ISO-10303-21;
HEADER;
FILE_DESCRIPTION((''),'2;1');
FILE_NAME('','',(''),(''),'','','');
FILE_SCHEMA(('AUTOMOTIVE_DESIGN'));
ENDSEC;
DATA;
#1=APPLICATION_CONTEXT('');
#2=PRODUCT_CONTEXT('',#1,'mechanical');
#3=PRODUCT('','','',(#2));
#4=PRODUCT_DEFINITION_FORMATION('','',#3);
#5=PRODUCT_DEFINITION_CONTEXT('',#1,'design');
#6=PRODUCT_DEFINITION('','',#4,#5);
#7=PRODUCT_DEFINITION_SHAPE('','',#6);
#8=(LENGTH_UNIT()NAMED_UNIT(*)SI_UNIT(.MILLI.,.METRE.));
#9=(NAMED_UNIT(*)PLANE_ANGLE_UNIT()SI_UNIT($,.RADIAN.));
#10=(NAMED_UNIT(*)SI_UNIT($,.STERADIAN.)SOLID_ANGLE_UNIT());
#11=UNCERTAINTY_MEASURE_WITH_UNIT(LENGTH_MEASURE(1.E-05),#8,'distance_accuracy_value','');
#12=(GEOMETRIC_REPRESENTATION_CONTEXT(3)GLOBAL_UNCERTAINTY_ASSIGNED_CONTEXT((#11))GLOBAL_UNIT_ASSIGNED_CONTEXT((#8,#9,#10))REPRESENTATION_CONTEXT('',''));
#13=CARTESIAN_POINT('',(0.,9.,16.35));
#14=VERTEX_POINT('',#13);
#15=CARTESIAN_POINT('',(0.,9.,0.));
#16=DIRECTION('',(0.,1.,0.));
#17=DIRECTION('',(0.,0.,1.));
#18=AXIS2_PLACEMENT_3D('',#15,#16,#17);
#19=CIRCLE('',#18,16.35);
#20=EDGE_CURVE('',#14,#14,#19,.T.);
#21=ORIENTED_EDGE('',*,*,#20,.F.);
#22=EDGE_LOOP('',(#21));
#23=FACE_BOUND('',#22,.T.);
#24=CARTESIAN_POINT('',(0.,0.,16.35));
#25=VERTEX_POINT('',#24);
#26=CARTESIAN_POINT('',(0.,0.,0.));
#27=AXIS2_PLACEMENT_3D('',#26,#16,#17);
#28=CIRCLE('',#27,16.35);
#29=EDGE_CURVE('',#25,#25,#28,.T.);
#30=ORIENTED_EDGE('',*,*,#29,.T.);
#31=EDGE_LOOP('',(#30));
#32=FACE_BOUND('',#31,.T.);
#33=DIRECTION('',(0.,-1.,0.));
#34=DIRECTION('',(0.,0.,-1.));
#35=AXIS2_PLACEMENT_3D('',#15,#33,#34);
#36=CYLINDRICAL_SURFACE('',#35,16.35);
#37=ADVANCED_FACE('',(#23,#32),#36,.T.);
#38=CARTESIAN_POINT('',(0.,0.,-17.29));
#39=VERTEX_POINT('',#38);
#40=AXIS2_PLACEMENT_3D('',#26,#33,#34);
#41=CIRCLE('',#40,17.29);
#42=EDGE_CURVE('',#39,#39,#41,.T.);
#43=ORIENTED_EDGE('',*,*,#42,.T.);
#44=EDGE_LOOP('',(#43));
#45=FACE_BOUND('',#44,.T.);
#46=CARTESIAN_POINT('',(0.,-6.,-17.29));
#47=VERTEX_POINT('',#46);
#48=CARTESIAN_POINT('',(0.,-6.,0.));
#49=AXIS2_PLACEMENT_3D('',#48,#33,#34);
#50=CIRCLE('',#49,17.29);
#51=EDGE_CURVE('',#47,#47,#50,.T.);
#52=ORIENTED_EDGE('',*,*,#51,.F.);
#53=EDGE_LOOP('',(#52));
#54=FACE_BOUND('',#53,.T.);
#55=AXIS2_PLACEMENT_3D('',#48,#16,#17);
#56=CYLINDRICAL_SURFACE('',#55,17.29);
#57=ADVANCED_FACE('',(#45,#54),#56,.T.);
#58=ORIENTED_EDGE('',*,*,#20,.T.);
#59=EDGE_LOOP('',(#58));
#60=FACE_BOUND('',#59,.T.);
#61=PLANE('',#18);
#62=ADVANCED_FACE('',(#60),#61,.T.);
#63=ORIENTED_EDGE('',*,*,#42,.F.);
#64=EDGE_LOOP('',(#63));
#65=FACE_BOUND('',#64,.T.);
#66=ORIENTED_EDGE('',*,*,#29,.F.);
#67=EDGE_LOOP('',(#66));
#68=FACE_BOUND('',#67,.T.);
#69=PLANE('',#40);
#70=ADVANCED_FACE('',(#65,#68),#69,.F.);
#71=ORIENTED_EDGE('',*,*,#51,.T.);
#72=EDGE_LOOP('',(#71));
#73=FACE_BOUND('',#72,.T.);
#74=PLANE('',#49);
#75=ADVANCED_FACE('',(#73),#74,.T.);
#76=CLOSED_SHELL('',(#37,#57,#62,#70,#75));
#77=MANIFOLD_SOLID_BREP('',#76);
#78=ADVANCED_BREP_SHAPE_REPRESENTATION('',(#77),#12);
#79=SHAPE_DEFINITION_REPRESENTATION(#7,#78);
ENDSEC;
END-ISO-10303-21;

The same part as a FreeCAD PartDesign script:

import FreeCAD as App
import Part
import Sketcher
from FreeCAD import Vector

doc = App.newDocument("Part")
params = doc.addObject("Spreadsheet::Sheet", "Params")
for row, (alias, value) in enumerate([
    ("sketch1_diameter", "32.7 mm"),
    ("pad1_length", "9 mm"),
    ("sketch2_diameter", "34.58 mm"),
    ("pad2_length", "6 mm"),
], start=1):
    params.set(f"A{row}", alias)
    params.set(f"B{row}", "=" + value)
    params.setAlias(f"B{row}", alias)

body = doc.addObject("PartDesign::Body", "Body")

# Sketch on XZ plane
sketch1 = body.newObject("Sketcher::SketchObject", "Sketch")
sketch1.AttachmentSupport = (doc.getObject("XZ_Plane"), [""])
sketch1.MapMode = "FlatFace"
sketch1.addGeometry(Part.Circle(Vector(0, 0, 0), Vector(0, 0, 1), 16), False)
sketch1.addConstraint(Sketcher.Constraint("Coincident", 0, 3, -1, 1))
sketch1.addConstraint(Sketcher.Constraint("Diameter", 0, 32.7))
sketch1.setExpression("Constraints[1]", "Params.sketch1_diameter")
pad1 = body.newObject("PartDesign::Pad", "Pad")
pad1.Profile = sketch1
pad1.setExpression("Length", "Params.pad1_length")
pad1.Reversed = True

# Sketch on XZ plane
sketch2 = body.newObject("Sketcher::SketchObject", "Sketch001")
sketch2.AttachmentSupport = (doc.getObject("XZ_Plane"), [""])
sketch2.MapMode = "FlatFace"
sketch2.addGeometry(Part.Circle(Vector(0, 0, 0), Vector(0, 0, 1), 17), False)
sketch2.addConstraint(Sketcher.Constraint("Coincident", 0, 3, -1, 1))
sketch2.addConstraint(Sketcher.Constraint("Diameter", 0, 34.58))
sketch2.setExpression("Constraints[1]", "Params.sketch2_diameter")
pad2 = body.newObject("PartDesign::Pad", "Pad001")
pad2.Profile = sketch2
pad2.setExpression("Length", "Params.pad2_length")

doc.recompute()
